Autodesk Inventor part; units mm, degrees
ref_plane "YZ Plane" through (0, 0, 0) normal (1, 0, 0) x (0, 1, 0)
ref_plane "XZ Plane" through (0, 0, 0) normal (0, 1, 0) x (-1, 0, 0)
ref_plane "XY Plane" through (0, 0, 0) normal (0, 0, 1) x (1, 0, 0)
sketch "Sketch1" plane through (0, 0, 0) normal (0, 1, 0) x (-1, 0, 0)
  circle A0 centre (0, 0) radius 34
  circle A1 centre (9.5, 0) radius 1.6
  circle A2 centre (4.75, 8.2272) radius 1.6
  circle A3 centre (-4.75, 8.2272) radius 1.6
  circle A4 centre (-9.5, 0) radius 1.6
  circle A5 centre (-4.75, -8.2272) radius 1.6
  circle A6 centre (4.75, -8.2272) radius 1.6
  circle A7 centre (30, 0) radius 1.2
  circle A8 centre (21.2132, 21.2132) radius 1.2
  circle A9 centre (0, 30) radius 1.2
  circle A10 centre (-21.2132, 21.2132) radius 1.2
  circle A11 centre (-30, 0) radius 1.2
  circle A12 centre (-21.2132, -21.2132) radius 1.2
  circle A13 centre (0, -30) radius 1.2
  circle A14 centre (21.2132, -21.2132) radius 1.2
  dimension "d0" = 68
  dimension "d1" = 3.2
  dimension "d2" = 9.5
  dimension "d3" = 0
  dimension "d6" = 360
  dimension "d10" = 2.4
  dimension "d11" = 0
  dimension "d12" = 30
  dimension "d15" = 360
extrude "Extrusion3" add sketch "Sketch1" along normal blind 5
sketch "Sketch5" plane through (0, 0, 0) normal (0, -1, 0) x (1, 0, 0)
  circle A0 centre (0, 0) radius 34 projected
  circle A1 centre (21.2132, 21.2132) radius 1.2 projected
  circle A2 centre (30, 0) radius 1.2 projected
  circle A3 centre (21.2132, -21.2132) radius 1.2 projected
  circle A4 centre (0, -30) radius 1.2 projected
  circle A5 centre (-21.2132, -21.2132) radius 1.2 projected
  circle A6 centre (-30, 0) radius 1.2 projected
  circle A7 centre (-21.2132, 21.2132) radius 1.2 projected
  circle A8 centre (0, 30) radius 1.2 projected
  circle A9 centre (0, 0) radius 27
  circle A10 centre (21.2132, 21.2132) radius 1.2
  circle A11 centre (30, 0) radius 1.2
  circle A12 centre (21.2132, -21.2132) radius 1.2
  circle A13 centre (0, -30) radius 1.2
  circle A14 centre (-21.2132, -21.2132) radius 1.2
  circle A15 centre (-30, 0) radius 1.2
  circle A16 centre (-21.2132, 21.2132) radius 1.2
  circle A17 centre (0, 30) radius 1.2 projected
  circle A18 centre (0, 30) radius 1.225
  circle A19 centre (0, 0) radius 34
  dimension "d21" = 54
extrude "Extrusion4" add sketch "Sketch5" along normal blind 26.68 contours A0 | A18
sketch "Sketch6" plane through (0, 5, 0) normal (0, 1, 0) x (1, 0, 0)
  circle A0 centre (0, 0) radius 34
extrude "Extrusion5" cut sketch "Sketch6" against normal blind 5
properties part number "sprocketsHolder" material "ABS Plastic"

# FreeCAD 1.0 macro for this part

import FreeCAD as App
import Part
import Sketcher

V = App.Vector

doc = App.newDocument("Part")
params = doc.addObject("Spreadsheet::Sheet", "Params")
for row, (alias, value) in enumerate([
    ("sketch1_diameter", "68 mm"),
    ("sketch1_diameter2", "2.4 mm"),
    ("sketch1_diameter3", "3.2 mm"),
    ("pad1_length", "5 mm"),
    ("sketch2_diameter", "54 mm"),
    ("sketch2_diameter2", "68 mm"),
    ("sketch2_diameter3", "2.4 mm"),
    ("pad2_length", "26.68 mm"),
    ("sketch3_diameter", "68 mm"),
    ("pocket1_length", "5 mm"),
], start=1):
    params.set(f"A{row}", alias)
    params.set(f"B{row}", "=" + value)
    params.setAlias(f"B{row}", alias)

body = doc.addObject("PartDesign::Body", "Body")

sketch1 = doc.addObject("Sketcher::SketchObject", "Sketch")
body.addObject(sketch1)
sketch1.AttachmentSupport = (doc.XZ_Plane, [""])
sketch1.MapMode = "FlatFace"
sketch1.addGeometry([
    Part.Circle(V(0, 0, 0), V(0, 0, 1), 34),
    Part.Circle(V(21.2, -21.2, 0), V(0, 0, 1), 1.2),
    Part.Circle(V(4.8, -8.2, 0), V(0, 0, 1), 1.6),
    Part.Circle(V(0, -30, 0), V(0, 0, 1), 1.2),
    Part.Circle(V(-21.2, -21.2, 0), V(0, 0, 1), 1.2),
    Part.Circle(V(-4.8, -8.2, 0), V(0, 0, 1), 1.6),
    Part.Circle(V(30, 0, 0), V(0, 0, 1), 1.2),
    Part.Circle(V(9.5, 0, 0), V(0, 0, 1), 1.6),
    Part.Circle(V(4.8, 8.2, 0), V(0, 0, 1), 1.6),
    Part.Circle(V(21.2, 21.2, 0), V(0, 0, 1), 1.2),
    Part.Circle(V(-4.8, 8.2, 0), V(0, 0, 1), 1.6),
    Part.Circle(V(-9.5, 0, 0), V(0, 0, 1), 1.6),
    Part.Circle(V(-30, 0, 0), V(0, 0, 1), 1.2),
    Part.Circle(V(0, 30, 0), V(0, 0, 1), 1.2),
    Part.Circle(V(-21.2, 21.2, 0), V(0, 0, 1), 1.2),
], False)
sketch1.addConstraint([
    Sketcher.Constraint("Coincident", 0, 3, -1, 1),
    Sketcher.Constraint("Equal", 1, 3),
    Sketcher.Constraint("Equal", 3, 4),
    Sketcher.Constraint("Equal", 2, 5),
    Sketcher.Constraint("Equal", 4, 6),
    Sketcher.Constraint("Equal", 5, 7),
    Sketcher.Constraint("Equal", 7, 8),
    Sketcher.Constraint("Equal", 6, 9),
    Sketcher.Constraint("Equal", 8, 10),
    Sketcher.Constraint("Equal", 10, 11),
    Sketcher.Constraint("Equal", 9, 12),
    Sketcher.Constraint("Equal", 12, 13),
    Sketcher.Constraint("Equal", 13, 14),
    Sketcher.Constraint("Symmetric", 5, 3, 8, 3, -1, 1),
    Sketcher.Constraint("Symmetric", 4, 3, 9, 3, -1, 1),
    Sketcher.Constraint("Symmetric", 2, 3, 10, 3, -1, 1),
    Sketcher.Constraint("Symmetric", 7, 3, 11, 3, -1, 1),
    Sketcher.Constraint("Symmetric", 6, 3, 12, 3, -1, 1),
    Sketcher.Constraint("Symmetric", 3, 3, 13, 3, -1, 1),
    Sketcher.Constraint("Symmetric", 1, 3, 14, 3, -1, 1),
    Sketcher.Constraint("Symmetric", 1, 3, 4, 3, -2),
    Sketcher.Constraint("Symmetric", 2, 3, 5, 3, -2),
    Sketcher.Constraint("PointOnObject", 3, 3, -2),
    Sketcher.Constraint("PointOnObject", 6, 3, -1),
    Sketcher.Constraint("PointOnObject", 7, 3, -1),
    Sketcher.Constraint("Diameter", 0, 68.0),
    Sketcher.Constraint("Diameter", 1, 2.4),
    Sketcher.Constraint("Diameter", 2, 3.2),
    Sketcher.Constraint("DistanceY", 3, 3, -1, 1, 30.0),
    Sketcher.Constraint("DistanceX", -1, 1, 6, 3, 30.0),
    Sketcher.Constraint("DistanceX", -1, 1, 7, 3, 9.5),
    Sketcher.Constraint("DistanceX", 5, 3, 2, 3, 9.5),
    Sketcher.Constraint("DistanceY", 1, 3, 2, 3, 12.986),
    Sketcher.Constraint("DistanceX", -1, 1, 1, 3, 21.2132),
    Sketcher.Constraint("DistanceY", 1, 3, -1, 1, 21.2132),
])
sketch1.setExpression("Constraints[25]", "Params.sketch1_diameter")
sketch1.setExpression("Constraints[26]", "Params.sketch1_diameter2")
sketch1.setExpression("Constraints[27]", "Params.sketch1_diameter3")
pad1 = doc.addObject("PartDesign::Pad", "Pad")
body.addObject(pad1)
pad1.Profile = sketch1
pad1.setExpression("Length", "Params.pad1_length")
pad1.Reversed = True

sketch2 = doc.addObject("Sketcher::SketchObject", "Sketch001")
body.addObject(sketch2)
sketch2.AttachmentSupport = (doc.XZ_Plane, [""])
sketch2.MapMode = "FlatFace"
sketch2.addGeometry([
    Part.Circle(V(0, 0, 0), V(0, 0, 1), 34),
    Part.Circle(V(-21.2, -21.2, 0), V(0, 0, 1), 1.2),
    Part.Circle(V(0, -30, 0), V(0, 0, 1), 1.2),
    Part.Circle(V(21.2, -21.2, 0), V(0, 0, 1), 1.2),
    Part.Circle(V(-30, 0, 0), V(0, 0, 1), 1.2),
    Part.Circle(V(-21.2, 21.2, 0), V(0, 0, 1), 1.2),
    Part.Circle(V(0, 0, 0), V(0, 0, 1), 27),
    Part.Circle(V(30, 0, 0), V(0, 0, 1), 1.2),
    Part.Circle(V(21.2, 21.2, 0), V(0, 0, 1), 1.2),
    Part.Circle(V(0, 30, 0), V(0, 0, 1), 1.2),
], False)
sketch2.addConstraint([
    Sketcher.Constraint("Coincident", 0, 3, -1, 1),
    Sketcher.Constraint("Coincident", 6, 3, -1, 1),
    Sketcher.Constraint("Equal", 1, 2),
    Sketcher.Constraint("Equal", 2, 3),
    Sketcher.Constraint("Equal", 3, 4),
    Sketcher.Constraint("Equal", 4, 5),
    Sketcher.Constraint("Equal", 5, 7),
    Sketcher.Constraint("Equal", 7, 8),
    Sketcher.Constraint("Equal", 8, 9),
    Sketcher.Constraint("Symmetric", 3, 3, 5, 3, -1, 1),
    Sketcher.Constraint("Symmetric", 4, 3, 7, 3, -1, 1),
    Sketcher.Constraint("Symmetric", 1, 3, 8, 3, -1, 1),
    Sketcher.Constraint("Symmetric", 2, 3, 9, 3, -1, 1),
    Sketcher.Constraint("Symmetric", 1, 3, 3, 3, -2),
    Sketcher.Constraint("PointOnObject", 2, 3, -2),
    Sketcher.Constraint("PointOnObject", 4, 3, -1),
    Sketcher.Constraint("Diameter", 6, 54.0),
    Sketcher.Constraint("Diameter", 0, 68.0),
    Sketcher.Constraint("Diameter", 1, 2.4),
    Sketcher.Constraint("DistanceY", 2, 3, -1, 1, 30.0),
    Sketcher.Constraint("DistanceX", 4, 3, -1, 1, 30.0),
    Sketcher.Constraint("DistanceX", 1, 3, -1, 1, 21.2132),
    Sketcher.Constraint("DistanceY", 1, 3, -1, 1, 21.2132),
])
sketch2.setExpression("Constraints[16]", "Params.sketch2_diameter")
sketch2.setExpression("Constraints[17]", "Params.sketch2_diameter2")
sketch2.setExpression("Constraints[18]", "Params.sketch2_diameter3")
pad2 = doc.addObject("PartDesign::Pad", "Pad001")
body.addObject(pad2)
pad2.Profile = sketch2
pad2.setExpression("Length", "Params.pad2_length")

sketch3 = doc.addObject("Sketcher::SketchObject", "Sketch002")
body.addObject(sketch3)
sketch3.AttachmentSupport = (doc.XZ_Plane, [""])
sketch3.MapMode = "FlatFace"
sketch3.AttachmentOffset = App.Placement(V(0, 0, -5), App.Rotation())
sketch3.addGeometry(Part.Circle(V(0, 0, 0), V(0, 0, 1), 34), False)
sketch3.addConstraint([
    Sketcher.Constraint("Coincident", 0, 3, -1, 1),
    Sketcher.Constraint("Diameter", 0, 68.0),
])
sketch3.setExpression("Constraints[1]", "Params.sketch3_diameter")
pocket1 = doc.addObject("PartDesign::Pocket", "Pocket")
body.addObject(pocket1)
pocket1.Profile = sketch3
pocket1.setExpression("Length", "Params.pocket1_length")
pocket1.Reversed = True

doc.recompute()
